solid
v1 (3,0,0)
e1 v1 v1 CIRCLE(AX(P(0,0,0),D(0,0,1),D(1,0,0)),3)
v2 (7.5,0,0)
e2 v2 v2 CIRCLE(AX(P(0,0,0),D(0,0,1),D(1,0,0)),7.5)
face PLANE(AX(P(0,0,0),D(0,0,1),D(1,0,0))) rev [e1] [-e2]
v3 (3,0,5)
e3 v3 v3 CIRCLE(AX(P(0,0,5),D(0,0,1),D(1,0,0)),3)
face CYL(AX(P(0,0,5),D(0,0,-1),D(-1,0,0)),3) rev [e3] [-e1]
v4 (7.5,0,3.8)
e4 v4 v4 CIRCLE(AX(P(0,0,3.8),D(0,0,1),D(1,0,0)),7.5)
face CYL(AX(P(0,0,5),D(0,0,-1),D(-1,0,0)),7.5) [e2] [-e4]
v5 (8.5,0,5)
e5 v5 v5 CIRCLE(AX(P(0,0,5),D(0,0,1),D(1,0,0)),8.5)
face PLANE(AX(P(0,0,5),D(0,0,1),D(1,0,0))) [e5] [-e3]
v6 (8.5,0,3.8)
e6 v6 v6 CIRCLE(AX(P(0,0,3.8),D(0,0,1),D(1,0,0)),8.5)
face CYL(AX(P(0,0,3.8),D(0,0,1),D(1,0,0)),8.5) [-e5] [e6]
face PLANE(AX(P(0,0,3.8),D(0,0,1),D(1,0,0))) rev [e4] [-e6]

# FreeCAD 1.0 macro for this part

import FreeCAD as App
import Part
import Sketcher
Q = App.Units.Quantity

doc = App.newDocument("Part")
body = doc.addObject("PartDesign::Body", "Body")

# Sketch on XY plane
sketch1 = doc.addObject("Sketcher::SketchObject", "Sketch")
body.addObject(sketch1)
sketch1.AttachmentSupport = (doc.XY_Plane, [""])
sketch1.MapMode = "FlatFace"
sketch1.addGeometry([
    Part.Circle(App.Vector(0, 0, 0), App.Vector(0, 0, 1), 7.5),
    Part.Circle(App.Vector(0, 0, 0), App.Vector(0, 0, 1), 3),
], False)
sketch1.addConstraint([
    Sketcher.Constraint("Coincident", 0, 3, -1, 1),
    Sketcher.Constraint("Coincident", 1, 3, -1, 1),
    Sketcher.Constraint("Diameter", 0, Q("15 mm")),
    Sketcher.Constraint("Diameter", 1, Q("6 mm")),
])
pad1 = doc.addObject("PartDesign::Pad", "Pad")
body.addObject(pad1)
pad1.Profile = sketch1
pad1.Length = 5

# Sketch on XY plane
sketch2 = doc.addObject("Sketcher::SketchObject", "Sketch001")
body.addObject(sketch2)
sketch2.AttachmentSupport = (doc.XY_Plane, [""])
sketch2.MapMode = "FlatFace"
sketch2.AttachmentOffset = App.Placement(App.Vector(0, 0, 3.8), App.Rotation())
sketch2.addGeometry([
    Part.Circle(App.Vector(0, 0, 0), App.Vector(0, 0, 1), 8),
    Part.Circle(App.Vector(0, 0, 0), App.Vector(0, 0, 1), 8),
], False)
sketch2.addConstraint([
    Sketcher.Constraint("Coincident", 0, 3, -1, 1),
    Sketcher.Constraint("Coincident", 1, 3, -1, 1),
    Sketcher.Constraint("Diameter", 0, Q("17 mm")),
    Sketcher.Constraint("Diameter", 1, Q("15 mm")),
])
pad2 = doc.addObject("PartDesign::Pad", "Pad001")
body.addObject(pad2)
pad2.Profile = sketch2
pad2.Length = 1.2

doc.recompute()
